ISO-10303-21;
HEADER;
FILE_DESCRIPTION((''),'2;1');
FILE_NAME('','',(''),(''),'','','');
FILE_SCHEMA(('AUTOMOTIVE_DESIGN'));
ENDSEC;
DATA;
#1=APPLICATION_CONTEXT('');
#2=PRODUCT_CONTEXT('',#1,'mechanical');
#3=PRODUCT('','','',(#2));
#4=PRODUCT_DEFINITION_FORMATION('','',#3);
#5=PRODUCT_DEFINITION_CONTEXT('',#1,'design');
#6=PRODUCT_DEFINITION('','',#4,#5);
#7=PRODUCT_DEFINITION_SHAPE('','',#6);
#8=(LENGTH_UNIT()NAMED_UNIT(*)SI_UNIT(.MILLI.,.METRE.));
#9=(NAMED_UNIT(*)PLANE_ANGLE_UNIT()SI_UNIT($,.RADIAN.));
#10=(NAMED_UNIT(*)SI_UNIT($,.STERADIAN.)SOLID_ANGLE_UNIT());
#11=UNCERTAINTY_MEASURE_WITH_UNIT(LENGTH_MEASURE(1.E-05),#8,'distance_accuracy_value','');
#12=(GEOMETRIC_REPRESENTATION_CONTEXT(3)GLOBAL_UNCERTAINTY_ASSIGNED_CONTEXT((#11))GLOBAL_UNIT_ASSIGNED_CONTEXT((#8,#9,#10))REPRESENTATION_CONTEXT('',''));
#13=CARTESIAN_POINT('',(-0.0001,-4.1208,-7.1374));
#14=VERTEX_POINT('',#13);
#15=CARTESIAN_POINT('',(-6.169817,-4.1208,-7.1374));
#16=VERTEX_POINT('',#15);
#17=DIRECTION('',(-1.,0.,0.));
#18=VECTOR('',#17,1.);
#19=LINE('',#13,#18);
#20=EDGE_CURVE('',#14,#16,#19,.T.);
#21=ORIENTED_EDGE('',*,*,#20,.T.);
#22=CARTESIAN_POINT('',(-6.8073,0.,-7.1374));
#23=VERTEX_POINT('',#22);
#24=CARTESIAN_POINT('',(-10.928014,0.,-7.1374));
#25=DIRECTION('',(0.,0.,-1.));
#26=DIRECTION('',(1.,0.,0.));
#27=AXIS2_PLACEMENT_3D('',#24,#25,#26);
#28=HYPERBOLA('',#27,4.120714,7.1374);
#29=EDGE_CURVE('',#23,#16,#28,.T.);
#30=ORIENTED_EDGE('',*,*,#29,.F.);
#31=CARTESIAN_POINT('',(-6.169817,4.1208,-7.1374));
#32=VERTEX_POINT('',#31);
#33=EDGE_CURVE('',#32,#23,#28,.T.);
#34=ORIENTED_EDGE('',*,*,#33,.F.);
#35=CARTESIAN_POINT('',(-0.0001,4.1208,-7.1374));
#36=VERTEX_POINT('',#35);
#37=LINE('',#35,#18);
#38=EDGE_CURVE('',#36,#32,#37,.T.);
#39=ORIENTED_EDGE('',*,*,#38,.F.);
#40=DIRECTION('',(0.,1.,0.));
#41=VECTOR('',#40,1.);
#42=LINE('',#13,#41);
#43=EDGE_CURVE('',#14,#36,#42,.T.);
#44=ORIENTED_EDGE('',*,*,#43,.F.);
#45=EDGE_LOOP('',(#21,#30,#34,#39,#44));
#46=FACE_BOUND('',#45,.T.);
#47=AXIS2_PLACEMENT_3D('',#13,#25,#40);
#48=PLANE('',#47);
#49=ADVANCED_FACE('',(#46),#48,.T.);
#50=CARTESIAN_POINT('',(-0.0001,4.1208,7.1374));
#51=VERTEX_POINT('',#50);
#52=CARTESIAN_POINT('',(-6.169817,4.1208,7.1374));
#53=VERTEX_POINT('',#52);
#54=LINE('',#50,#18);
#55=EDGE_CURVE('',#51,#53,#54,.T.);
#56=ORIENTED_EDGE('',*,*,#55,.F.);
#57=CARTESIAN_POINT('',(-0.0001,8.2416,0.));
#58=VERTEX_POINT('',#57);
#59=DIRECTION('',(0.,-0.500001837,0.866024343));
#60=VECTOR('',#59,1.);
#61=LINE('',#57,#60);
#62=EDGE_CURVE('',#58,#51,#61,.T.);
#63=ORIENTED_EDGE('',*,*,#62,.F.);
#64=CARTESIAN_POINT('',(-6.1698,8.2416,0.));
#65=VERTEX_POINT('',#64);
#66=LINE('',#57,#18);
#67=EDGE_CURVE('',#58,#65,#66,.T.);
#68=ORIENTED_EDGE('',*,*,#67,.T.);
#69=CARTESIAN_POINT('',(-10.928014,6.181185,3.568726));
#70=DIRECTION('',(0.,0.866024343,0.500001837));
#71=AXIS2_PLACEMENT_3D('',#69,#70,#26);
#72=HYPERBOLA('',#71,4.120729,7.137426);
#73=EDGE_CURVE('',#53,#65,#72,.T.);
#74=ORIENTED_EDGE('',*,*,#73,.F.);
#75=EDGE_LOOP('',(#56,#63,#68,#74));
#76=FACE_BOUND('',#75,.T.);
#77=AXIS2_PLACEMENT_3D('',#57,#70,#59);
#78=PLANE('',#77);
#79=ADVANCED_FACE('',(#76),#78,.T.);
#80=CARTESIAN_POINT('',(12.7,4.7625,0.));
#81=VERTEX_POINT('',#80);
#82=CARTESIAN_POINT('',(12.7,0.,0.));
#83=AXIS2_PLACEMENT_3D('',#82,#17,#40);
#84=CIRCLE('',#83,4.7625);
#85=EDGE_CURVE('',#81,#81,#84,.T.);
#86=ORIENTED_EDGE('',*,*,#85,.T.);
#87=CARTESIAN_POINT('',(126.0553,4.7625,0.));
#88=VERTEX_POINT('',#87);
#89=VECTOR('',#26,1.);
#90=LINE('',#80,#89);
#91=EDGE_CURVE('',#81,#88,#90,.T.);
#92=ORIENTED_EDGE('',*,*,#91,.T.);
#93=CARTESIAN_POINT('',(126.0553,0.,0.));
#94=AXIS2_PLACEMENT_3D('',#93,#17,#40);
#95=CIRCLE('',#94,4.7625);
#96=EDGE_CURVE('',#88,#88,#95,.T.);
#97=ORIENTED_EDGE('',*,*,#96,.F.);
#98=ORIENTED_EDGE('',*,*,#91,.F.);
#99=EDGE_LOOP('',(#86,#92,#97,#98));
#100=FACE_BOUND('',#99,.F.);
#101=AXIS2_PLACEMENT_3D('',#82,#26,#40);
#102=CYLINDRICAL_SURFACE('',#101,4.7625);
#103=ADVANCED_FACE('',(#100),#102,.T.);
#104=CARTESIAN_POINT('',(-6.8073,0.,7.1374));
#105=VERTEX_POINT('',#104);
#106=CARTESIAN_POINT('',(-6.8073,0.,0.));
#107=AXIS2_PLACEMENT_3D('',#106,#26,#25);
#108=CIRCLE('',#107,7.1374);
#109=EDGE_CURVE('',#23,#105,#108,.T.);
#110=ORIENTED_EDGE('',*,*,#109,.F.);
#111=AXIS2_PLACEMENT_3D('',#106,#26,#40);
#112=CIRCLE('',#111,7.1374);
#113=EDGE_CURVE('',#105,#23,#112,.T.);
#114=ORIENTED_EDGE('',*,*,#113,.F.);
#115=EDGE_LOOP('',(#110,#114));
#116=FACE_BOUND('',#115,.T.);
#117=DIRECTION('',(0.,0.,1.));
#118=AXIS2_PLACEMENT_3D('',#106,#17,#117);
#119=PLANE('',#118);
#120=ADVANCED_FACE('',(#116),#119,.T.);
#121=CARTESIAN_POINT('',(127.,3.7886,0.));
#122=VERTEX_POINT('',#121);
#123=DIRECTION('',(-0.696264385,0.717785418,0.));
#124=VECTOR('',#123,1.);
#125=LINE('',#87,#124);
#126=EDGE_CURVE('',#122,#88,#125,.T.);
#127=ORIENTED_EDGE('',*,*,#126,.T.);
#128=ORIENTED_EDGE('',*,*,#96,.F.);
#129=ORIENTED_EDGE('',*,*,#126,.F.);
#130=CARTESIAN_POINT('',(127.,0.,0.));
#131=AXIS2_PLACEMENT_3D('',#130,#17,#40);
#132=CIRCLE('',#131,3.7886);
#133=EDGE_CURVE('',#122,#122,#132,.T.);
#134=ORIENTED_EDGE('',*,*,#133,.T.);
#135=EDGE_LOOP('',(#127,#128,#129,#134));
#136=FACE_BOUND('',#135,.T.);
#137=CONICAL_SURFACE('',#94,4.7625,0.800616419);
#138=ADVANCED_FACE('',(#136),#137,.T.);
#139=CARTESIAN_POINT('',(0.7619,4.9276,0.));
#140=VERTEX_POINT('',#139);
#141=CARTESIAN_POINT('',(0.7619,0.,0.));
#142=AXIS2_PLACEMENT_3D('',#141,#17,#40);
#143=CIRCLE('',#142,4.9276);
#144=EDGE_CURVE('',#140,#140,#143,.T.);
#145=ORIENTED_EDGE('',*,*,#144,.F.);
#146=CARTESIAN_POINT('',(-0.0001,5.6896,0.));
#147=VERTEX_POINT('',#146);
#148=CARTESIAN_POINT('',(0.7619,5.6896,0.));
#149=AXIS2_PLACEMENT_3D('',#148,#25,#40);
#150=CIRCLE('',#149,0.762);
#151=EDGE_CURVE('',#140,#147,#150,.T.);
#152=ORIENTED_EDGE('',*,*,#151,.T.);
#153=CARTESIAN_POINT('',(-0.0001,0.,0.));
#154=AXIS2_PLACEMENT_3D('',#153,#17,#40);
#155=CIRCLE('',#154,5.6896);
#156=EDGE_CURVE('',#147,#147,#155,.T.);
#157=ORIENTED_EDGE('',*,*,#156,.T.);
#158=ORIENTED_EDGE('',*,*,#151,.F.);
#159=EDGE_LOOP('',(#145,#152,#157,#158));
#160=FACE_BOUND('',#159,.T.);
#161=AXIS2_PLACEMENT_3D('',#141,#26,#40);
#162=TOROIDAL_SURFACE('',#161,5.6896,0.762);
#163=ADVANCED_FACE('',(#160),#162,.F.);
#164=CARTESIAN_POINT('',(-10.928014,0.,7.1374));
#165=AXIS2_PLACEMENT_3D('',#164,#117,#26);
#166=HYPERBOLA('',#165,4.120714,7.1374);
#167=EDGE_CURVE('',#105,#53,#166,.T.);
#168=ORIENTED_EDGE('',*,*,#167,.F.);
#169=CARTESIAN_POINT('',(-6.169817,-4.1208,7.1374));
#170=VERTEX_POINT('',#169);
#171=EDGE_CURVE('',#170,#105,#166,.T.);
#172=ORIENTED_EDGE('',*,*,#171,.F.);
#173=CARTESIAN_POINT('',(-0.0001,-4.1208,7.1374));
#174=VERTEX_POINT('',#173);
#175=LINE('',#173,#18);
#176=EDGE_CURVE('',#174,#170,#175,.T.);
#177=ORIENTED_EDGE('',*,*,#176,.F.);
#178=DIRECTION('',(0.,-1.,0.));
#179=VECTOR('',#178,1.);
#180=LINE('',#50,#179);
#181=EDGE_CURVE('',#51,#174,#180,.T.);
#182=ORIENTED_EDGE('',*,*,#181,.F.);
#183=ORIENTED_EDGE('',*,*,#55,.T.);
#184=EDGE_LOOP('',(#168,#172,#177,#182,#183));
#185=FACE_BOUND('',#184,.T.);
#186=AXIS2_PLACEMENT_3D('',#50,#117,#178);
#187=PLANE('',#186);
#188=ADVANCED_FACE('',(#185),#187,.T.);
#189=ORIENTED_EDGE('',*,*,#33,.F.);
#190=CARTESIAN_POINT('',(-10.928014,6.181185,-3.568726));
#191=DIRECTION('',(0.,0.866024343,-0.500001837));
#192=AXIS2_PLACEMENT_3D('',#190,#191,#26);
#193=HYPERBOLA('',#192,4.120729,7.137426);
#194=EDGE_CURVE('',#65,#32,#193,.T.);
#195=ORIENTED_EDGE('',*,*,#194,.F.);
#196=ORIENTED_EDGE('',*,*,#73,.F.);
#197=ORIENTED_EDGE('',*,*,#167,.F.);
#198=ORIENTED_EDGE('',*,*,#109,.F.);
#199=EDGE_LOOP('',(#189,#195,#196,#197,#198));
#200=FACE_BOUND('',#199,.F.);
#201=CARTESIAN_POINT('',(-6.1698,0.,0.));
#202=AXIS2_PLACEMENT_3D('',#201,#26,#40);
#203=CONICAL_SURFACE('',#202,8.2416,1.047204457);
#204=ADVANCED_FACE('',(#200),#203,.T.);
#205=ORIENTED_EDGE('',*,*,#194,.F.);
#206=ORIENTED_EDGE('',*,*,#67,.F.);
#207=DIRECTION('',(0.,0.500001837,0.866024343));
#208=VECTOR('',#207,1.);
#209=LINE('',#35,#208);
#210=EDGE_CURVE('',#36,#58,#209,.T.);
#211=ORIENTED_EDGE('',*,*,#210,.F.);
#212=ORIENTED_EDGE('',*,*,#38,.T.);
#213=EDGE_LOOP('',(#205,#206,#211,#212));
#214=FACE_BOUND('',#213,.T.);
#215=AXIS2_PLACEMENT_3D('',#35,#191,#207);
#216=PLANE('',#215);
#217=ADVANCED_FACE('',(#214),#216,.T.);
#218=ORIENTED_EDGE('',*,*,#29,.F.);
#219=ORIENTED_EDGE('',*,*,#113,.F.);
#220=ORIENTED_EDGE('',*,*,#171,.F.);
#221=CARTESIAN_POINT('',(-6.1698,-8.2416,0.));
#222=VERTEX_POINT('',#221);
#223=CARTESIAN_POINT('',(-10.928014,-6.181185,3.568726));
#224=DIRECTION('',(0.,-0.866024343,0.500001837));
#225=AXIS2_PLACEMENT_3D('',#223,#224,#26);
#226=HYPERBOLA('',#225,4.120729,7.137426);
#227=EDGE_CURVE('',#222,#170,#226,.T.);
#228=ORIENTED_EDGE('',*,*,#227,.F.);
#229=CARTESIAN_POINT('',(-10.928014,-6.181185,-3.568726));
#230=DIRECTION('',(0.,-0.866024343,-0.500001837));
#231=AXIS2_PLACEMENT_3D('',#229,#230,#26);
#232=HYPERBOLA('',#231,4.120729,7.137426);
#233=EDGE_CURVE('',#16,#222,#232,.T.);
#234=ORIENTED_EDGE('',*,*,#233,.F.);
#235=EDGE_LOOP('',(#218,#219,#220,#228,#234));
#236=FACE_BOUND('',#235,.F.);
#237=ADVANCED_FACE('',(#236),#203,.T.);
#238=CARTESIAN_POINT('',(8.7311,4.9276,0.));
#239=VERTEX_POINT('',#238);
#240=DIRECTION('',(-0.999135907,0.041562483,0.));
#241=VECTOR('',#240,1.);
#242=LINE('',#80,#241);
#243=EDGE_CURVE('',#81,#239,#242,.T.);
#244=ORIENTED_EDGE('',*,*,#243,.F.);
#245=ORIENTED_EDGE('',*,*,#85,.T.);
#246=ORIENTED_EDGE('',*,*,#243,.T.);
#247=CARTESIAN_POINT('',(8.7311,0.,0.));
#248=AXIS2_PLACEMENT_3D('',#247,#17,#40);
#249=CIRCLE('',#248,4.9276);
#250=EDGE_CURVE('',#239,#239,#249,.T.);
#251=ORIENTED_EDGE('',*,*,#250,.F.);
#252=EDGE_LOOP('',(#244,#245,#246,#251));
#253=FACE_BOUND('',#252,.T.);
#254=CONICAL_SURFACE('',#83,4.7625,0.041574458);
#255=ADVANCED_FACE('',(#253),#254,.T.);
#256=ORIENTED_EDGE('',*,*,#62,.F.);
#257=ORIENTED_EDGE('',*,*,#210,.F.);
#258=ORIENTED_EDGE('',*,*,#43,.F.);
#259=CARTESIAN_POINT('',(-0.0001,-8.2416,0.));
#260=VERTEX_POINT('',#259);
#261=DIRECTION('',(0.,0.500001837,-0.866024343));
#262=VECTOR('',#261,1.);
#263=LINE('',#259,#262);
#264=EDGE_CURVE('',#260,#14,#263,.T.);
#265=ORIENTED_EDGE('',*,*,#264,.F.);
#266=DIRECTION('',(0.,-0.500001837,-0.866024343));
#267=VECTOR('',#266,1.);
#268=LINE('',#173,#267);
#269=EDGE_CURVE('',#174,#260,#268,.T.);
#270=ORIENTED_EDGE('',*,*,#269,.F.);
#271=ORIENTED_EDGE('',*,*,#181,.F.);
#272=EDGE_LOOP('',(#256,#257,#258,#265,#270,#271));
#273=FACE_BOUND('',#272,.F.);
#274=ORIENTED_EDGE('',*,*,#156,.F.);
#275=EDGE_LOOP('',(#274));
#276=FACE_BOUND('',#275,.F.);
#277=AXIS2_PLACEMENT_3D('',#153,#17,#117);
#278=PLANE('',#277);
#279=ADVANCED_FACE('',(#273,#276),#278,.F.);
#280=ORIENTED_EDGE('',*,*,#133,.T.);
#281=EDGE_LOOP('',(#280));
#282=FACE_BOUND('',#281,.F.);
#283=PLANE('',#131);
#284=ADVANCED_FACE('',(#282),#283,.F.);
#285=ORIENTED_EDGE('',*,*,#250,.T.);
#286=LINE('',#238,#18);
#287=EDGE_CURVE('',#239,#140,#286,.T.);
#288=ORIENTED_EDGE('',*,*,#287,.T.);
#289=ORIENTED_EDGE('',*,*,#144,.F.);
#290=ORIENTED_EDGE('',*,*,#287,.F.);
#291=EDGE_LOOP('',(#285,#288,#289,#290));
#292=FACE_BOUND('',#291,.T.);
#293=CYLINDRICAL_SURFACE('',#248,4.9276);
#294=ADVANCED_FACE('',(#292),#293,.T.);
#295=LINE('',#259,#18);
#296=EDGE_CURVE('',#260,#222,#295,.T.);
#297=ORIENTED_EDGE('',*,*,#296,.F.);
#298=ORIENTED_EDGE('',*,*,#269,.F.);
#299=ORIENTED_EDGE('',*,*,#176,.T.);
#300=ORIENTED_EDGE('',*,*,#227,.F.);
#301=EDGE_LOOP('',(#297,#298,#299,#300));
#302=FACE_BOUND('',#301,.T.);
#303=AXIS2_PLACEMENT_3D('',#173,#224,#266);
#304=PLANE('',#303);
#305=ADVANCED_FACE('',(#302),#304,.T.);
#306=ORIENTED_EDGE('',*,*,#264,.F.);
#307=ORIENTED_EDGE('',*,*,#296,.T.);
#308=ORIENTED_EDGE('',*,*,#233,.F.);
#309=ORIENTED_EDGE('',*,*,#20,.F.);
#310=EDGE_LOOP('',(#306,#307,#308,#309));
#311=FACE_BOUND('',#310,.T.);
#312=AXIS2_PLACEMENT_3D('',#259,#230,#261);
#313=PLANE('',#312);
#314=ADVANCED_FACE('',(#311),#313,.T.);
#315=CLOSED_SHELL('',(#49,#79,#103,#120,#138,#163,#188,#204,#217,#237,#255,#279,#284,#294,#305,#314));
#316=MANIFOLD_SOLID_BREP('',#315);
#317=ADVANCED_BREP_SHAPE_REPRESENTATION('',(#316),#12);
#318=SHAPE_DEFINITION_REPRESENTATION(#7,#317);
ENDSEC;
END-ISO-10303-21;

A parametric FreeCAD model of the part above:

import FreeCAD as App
import Part
import Sketcher
from FreeCAD import Vector
Q = App.Units.Quantity


def edges_at(feature, points):
    """Names of the edges that pass closest to the given points."""
    edges = feature.Shape.Edges
    near = lambda p: min(range(len(edges)), key=lambda i: edges[i].distToShape(Part.Vertex(*p))[0])
    return sorted({f"Edge{near(p) + 1}" for p in points})

doc = App.newDocument("Part")
body = doc.addObject("PartDesign::Body", "Body")

# Sketch on XY plane
sketch1 = body.newObject("Sketcher::SketchObject", "Sketch")
sketch1.AttachmentSupport = (doc.getObject("XY_Plane"), [""])
sketch1.MapMode = "FlatFace"
sketch1.addGeometry(Part.LineSegment(Vector(127, 4.8, 0), Vector(12.7, 4.8, 0)), False)
sketch1.addGeometry(Part.LineSegment(Vector(12.7, 4.8, 0), Vector(8.7, 4.9, 0)), False)
sketch1.addGeometry(Part.LineSegment(Vector(8.7, 4.9, 0), Vector(0, 4.9, 0)), False)
sketch1.addGeometry(Part.LineSegment(Vector(0, 4.9, 0), Vector(0, 0, 0)), False)
sketch1.addGeometry(Part.LineSegment(Vector(0, 0, 0), Vector(127, 0, 0)), False)
sketch1.addGeometry(Part.LineSegment(Vector(127, 0, 0), Vector(127, 4.8, 0)), False)
sketch1.addConstraint(Sketcher.Constraint("Coincident", 0, 2, 1, 1))
sketch1.addConstraint(Sketcher.Constraint("Coincident", 1, 2, 2, 1))
sketch1.addConstraint(Sketcher.Constraint("Coincident", 2, 2, 3, 1))
sketch1.addConstraint(Sketcher.Constraint("Coincident", 3, 2, 4, 1))
sketch1.addConstraint(Sketcher.Constraint("Coincident", 4, 2, 5, 1))
sketch1.addConstraint(Sketcher.Constraint("Coincident", 5, 2, 0, 1))
sketch1.addConstraint(Sketcher.Constraint("Horizontal", 0))
sketch1.addConstraint(Sketcher.Constraint("Horizontal", 2))
sketch1.addConstraint(Sketcher.Constraint("Vertical", 3))
sketch1.addConstraint(Sketcher.Constraint("Horizontal", 4))
sketch1.addConstraint(Sketcher.Constraint("Vertical", 5))
sketch1.addConstraint(Sketcher.Constraint("Coincident", 3, 2, -1, 1))
sketch1.addConstraint(Sketcher.Constraint("DistanceX", 4, 1, 4, 2, Q("5 in")))
sketch1.addConstraint(Sketcher.Constraint("DistanceX", 0, 2, 0, 1, Q("4.5 in")))
sketch1.addConstraint(Sketcher.Constraint("DistanceX", 2, 2, 2, 1, 8.731))
sketch1.addConstraint(Sketcher.Constraint("DistanceY", 3, 2, 3, 1, Q("0.194 in")))
sketch1.addConstraint(Sketcher.Constraint("DistanceY", 5, 1, 5, 2, Q("0.1875 in")))
revolution = body.newObject("PartDesign::Revolution", "Revolution")
revolution.Profile = sketch1
revolution.ReferenceAxis = (sketch1, ["H_Axis"])
revolution.Angle = 360

# Sketch on YZ plane
sketch2 = body.newObject("Sketcher::SketchObject", "Sketch001")
sketch2.AttachmentSupport = (doc.getObject("YZ_Plane"), [""])
sketch2.MapMode = "FlatFace"
sketch2.AttachmentOffset = App.Placement(Vector(0, 0, -0.0000039 * 25.4), App.Rotation())
sketch2.addGeometry(Part.LineSegment(Vector(4, 7, 0), Vector(8, 0, 0)), False)
sketch2.addGeometry(Part.LineSegment(Vector(8, 0, 0), Vector(4, -7, 0)), False)
sketch2.addGeometry(Part.LineSegment(Vector(4, -7, 0), Vector(-4, -7, 0)), False)
sketch2.addGeometry(Part.LineSegment(Vector(-4, -7, 0), Vector(-8, 0, 0)), False)
sketch2.addGeometry(Part.LineSegment(Vector(-8, 0, 0), Vector(-4, 7, 0)), False)
sketch2.addGeometry(Part.LineSegment(Vector(-4, 7, 0), Vector(4, 7, 0)), False)
sketch2.addConstraint(Sketcher.Constraint("Coincident", 0, 2, 1, 1))
sketch2.addConstraint(Sketcher.Constraint("Coincident", 1, 2, 2, 1))
sketch2.addConstraint(Sketcher.Constraint("Coincident", 2, 2, 3, 1))
sketch2.addConstraint(Sketcher.Constraint("Coincident", 3, 2, 4, 1))
sketch2.addConstraint(Sketcher.Constraint("Coincident", 4, 2, 5, 1))
sketch2.addConstraint(Sketcher.Constraint("Coincident", 5, 2, 0, 1))
sketch2.addConstraint(Sketcher.Constraint("Horizontal", 2))
sketch2.addConstraint(Sketcher.Constraint("Horizontal", 5))
sketch2.addConstraint(Sketcher.Constraint("Symmetric", 0, 2, 3, 2, -1, 1))
sketch2.addConstraint(Sketcher.Constraint("Symmetric", 1, 2, 4, 2, -1, 1))
sketch2.addConstraint(Sketcher.Constraint("PointOnObject", 0, 2, -1))
sketch2.addConstraint(Sketcher.Constraint("Parallel", 0, 3))
sketch2.addConstraint(Sketcher.Constraint("Vertical", 2, 2, 4, 2))
sketch2.addConstraint(Sketcher.Constraint("Angle", 0, Q("-59.9999 deg")))
sketch2.addConstraint(Sketcher.Constraint("DistanceY", 2, 2, 4, 2, Q("0.562 in")))
sketch2.addConstraint(Sketcher.Constraint("DistanceX", 2, 2, 2, 1, 8.2416))
pad1 = body.newObject("PartDesign::Pad", "Pad")
pad1.Profile = sketch2
pad1.Length = Q("0.268 in")
pad1.Reversed = True

# Sketch on XY plane
sketch3 = body.newObject("Sketcher::SketchObject", "Sketch002")
sketch3.AttachmentSupport = (doc.getObject("XY_Plane"), [""])
sketch3.MapMode = "FlatFace"
sketch3.addGeometry(Part.LineSegment(Vector(-6.8, 8.2, 0), Vector(-6.8, 7.1, 0)), False)
sketch3.addGeometry(Part.LineSegment(Vector(-6.8, 7.1, 0), Vector(-6.2, 8.2, 0)), False)
sketch3.addGeometry(Part.LineSegment(Vector(-6.2, 8.2, 0), Vector(-6.8, 8.2, 0)), False)
sketch3.addConstraint(Sketcher.Constraint("Coincident", 0, 2, 1, 1))
sketch3.addConstraint(Sketcher.Constraint("Coincident", 1, 2, 2, 1))
sketch3.addConstraint(Sketcher.Constraint("Coincident", 2, 2, 0, 1))
sketch3.addConstraint(Sketcher.Constraint("Vertical", 0))
sketch3.addConstraint(Sketcher.Constraint("Horizontal", 2))
sketch3.addConstraint(Sketcher.Constraint("Angle", 1, Q("60.0004 deg")))
sketch3.addConstraint(Sketcher.Constraint("DistanceX", 2, 2, 2, 1, Q("0.0251 in")))
sketch3.addConstraint(Sketcher.Constraint("DistanceX", 0, 2, -1, 1, Q("0.268 in")))
sketch3.addConstraint(Sketcher.Constraint("DistanceY", -1, 1, 0, 2, Q("0.281 in")))
groove = body.newObject("PartDesign::Groove", "Groove")
groove.Profile = sketch3
groove.ReferenceAxis = (sketch3, ["H_Axis"])
groove.Angle = 360
doc.recompute()

chamfer = body.newObject("PartDesign::Chamfer", "Chamfer")
chamfer.Base = (groove, edges_at(groove, [(127, -4.763, 0)]))
chamfer.ChamferType = "Two distances"
chamfer.Size = 0.9739
chamfer.Size2 = Q("0.0371929 in")
doc.recompute()

fillet = body.newObject("PartDesign::Fillet", "Fillet")
fillet.Base = (chamfer, edges_at(chamfer, [(0, -4.928, 0)]))
fillet.Radius = Q("0.03 in")

doc.recompute()
